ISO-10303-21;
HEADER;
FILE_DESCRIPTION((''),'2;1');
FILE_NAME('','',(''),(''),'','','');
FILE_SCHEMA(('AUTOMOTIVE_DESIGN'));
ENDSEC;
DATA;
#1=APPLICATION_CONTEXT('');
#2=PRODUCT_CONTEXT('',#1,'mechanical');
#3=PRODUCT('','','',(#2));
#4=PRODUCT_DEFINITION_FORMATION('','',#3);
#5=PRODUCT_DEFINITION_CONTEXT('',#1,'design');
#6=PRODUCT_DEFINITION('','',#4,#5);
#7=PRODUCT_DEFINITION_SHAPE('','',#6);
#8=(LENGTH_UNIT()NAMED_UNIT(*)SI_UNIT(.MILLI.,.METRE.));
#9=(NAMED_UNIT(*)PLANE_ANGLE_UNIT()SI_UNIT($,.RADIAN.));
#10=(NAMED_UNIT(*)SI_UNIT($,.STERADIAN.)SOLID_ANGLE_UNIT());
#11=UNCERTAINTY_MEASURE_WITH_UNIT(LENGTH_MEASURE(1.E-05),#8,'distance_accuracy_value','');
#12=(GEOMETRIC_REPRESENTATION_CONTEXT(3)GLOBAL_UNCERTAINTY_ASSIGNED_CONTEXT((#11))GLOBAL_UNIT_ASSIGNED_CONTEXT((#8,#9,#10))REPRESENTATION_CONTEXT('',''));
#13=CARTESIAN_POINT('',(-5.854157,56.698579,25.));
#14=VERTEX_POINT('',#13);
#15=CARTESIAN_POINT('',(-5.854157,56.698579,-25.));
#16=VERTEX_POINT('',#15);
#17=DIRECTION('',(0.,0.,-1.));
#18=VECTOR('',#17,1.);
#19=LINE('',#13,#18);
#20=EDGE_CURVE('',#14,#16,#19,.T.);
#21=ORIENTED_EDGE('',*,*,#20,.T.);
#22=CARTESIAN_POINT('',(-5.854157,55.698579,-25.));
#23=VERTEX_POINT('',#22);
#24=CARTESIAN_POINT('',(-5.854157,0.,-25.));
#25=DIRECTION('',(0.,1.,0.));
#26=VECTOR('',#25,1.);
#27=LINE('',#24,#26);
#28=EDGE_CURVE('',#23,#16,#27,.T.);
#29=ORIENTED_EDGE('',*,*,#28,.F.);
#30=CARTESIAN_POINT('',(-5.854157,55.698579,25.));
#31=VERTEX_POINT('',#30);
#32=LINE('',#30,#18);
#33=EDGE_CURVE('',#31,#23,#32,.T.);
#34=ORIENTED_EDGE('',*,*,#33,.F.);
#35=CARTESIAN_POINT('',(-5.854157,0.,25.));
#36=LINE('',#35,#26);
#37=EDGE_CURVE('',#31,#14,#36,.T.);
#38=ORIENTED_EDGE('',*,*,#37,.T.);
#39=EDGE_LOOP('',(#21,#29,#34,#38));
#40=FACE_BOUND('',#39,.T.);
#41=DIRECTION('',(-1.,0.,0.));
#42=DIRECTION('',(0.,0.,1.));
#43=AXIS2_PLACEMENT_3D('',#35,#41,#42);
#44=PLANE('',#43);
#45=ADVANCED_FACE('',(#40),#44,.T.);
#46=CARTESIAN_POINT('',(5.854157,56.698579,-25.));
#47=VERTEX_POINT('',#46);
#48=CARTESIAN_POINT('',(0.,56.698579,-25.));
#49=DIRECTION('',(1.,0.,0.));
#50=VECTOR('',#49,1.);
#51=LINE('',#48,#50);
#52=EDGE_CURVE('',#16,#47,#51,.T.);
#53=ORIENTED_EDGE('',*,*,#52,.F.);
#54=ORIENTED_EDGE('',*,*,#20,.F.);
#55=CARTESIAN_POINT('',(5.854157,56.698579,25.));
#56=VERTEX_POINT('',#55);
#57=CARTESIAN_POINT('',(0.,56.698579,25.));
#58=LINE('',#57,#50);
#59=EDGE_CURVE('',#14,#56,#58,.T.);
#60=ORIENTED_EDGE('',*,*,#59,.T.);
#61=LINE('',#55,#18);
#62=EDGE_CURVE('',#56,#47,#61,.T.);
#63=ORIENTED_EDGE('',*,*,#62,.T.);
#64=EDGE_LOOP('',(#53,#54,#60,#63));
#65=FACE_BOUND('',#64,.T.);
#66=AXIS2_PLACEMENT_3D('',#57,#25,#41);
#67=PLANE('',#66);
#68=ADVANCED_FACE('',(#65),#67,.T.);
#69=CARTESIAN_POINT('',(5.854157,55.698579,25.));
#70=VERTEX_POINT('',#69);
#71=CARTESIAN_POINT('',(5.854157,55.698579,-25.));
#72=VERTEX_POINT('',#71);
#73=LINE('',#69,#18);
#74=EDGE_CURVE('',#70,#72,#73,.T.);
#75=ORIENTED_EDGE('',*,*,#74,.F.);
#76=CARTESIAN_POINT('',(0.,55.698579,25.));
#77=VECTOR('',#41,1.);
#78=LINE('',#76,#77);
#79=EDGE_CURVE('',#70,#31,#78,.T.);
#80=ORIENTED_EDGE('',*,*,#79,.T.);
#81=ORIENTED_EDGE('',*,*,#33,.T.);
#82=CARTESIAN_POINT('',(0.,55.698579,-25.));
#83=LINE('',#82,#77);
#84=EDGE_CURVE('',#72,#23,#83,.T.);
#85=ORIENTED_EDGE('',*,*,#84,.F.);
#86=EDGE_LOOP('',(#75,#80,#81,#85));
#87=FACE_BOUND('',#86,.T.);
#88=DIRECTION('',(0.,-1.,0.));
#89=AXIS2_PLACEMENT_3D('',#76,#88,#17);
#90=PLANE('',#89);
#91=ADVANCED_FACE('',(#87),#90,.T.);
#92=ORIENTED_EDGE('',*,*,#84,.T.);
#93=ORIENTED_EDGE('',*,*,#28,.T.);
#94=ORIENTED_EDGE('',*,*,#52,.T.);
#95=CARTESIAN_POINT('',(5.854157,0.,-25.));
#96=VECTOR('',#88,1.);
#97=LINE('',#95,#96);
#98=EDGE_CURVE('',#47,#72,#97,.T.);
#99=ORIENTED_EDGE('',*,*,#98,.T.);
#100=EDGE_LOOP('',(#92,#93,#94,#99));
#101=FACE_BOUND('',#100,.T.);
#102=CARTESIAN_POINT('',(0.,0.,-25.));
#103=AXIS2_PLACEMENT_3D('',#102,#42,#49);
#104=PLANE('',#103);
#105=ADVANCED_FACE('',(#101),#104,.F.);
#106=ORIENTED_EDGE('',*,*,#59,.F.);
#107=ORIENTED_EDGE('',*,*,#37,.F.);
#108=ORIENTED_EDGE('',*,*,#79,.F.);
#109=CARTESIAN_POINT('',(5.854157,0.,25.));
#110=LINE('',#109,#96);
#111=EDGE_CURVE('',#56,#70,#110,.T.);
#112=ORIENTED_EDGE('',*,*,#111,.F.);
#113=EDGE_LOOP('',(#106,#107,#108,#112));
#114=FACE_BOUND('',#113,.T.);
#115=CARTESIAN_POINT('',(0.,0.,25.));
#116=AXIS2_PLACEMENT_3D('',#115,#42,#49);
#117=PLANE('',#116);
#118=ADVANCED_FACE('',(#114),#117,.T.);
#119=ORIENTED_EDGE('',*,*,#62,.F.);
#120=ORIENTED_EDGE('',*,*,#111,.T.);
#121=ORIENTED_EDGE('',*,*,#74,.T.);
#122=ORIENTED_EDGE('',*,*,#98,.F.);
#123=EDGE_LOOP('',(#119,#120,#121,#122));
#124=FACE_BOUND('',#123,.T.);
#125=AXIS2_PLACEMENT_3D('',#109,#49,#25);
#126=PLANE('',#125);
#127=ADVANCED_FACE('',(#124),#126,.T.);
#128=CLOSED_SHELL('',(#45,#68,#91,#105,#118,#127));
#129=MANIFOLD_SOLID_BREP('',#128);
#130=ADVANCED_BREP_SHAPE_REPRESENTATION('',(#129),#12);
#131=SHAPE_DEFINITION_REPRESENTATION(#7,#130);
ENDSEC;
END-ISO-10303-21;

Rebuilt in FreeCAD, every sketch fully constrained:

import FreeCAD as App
import Part
import Sketcher
from FreeCAD import Vector


def add_polygon(sketch, points):
    """Adds a closed chain of lines whose ends are joined by coincident constraints."""
    first, n = sketch.GeometryCount, len(points)
    for a, b in zip(points, points[1:] + points[:1]):
        sketch.addGeometry(Part.LineSegment(App.Vector(*a, 0), App.Vector(*b, 0)), False)
    for i in range(n):
        sketch.addConstraint(Sketcher.Constraint("Coincident", first + i, 2, first + (i + 1) % n, 1))

doc = App.newDocument("Part")
body = doc.addObject("PartDesign::Body", "Body")

# Sketch on XY plane
sketch1 = body.newObject("Sketcher::SketchObject", "Sketch")
sketch1.AttachmentSupport = (doc.getObject("XY_Plane"), [""])
sketch1.MapMode = "FlatFace"
add_polygon(sketch1, [(-5.854157, 56.698579), (-5.854157, 55.698579), (5.854157, 55.698579), (5.854157, 56.698579)])  # lines 0-3
sketch1.addConstraint([
    Sketcher.Constraint("Vertical", 0),
    Sketcher.Constraint("Horizontal", 1),
    Sketcher.Constraint("Vertical", 2),
    Sketcher.Constraint("Horizontal", 3),
    Sketcher.Constraint("DistanceY", 0, 2, 0, 1, 1.0),
    Sketcher.Constraint("DistanceX", 1, 1, 1, 2, 11.708313),
    Sketcher.Constraint("DistanceY", -1, 1, 0, 2, 55.698579),
    Sketcher.Constraint("DistanceX", 0, 2, -1, 1, 5.854157),
])
pad1 = body.newObject("PartDesign::Pad", "Pad")
pad1.Profile = sketch1
pad1.Length = 50
pad1.Midplane = True

doc.recompute()
